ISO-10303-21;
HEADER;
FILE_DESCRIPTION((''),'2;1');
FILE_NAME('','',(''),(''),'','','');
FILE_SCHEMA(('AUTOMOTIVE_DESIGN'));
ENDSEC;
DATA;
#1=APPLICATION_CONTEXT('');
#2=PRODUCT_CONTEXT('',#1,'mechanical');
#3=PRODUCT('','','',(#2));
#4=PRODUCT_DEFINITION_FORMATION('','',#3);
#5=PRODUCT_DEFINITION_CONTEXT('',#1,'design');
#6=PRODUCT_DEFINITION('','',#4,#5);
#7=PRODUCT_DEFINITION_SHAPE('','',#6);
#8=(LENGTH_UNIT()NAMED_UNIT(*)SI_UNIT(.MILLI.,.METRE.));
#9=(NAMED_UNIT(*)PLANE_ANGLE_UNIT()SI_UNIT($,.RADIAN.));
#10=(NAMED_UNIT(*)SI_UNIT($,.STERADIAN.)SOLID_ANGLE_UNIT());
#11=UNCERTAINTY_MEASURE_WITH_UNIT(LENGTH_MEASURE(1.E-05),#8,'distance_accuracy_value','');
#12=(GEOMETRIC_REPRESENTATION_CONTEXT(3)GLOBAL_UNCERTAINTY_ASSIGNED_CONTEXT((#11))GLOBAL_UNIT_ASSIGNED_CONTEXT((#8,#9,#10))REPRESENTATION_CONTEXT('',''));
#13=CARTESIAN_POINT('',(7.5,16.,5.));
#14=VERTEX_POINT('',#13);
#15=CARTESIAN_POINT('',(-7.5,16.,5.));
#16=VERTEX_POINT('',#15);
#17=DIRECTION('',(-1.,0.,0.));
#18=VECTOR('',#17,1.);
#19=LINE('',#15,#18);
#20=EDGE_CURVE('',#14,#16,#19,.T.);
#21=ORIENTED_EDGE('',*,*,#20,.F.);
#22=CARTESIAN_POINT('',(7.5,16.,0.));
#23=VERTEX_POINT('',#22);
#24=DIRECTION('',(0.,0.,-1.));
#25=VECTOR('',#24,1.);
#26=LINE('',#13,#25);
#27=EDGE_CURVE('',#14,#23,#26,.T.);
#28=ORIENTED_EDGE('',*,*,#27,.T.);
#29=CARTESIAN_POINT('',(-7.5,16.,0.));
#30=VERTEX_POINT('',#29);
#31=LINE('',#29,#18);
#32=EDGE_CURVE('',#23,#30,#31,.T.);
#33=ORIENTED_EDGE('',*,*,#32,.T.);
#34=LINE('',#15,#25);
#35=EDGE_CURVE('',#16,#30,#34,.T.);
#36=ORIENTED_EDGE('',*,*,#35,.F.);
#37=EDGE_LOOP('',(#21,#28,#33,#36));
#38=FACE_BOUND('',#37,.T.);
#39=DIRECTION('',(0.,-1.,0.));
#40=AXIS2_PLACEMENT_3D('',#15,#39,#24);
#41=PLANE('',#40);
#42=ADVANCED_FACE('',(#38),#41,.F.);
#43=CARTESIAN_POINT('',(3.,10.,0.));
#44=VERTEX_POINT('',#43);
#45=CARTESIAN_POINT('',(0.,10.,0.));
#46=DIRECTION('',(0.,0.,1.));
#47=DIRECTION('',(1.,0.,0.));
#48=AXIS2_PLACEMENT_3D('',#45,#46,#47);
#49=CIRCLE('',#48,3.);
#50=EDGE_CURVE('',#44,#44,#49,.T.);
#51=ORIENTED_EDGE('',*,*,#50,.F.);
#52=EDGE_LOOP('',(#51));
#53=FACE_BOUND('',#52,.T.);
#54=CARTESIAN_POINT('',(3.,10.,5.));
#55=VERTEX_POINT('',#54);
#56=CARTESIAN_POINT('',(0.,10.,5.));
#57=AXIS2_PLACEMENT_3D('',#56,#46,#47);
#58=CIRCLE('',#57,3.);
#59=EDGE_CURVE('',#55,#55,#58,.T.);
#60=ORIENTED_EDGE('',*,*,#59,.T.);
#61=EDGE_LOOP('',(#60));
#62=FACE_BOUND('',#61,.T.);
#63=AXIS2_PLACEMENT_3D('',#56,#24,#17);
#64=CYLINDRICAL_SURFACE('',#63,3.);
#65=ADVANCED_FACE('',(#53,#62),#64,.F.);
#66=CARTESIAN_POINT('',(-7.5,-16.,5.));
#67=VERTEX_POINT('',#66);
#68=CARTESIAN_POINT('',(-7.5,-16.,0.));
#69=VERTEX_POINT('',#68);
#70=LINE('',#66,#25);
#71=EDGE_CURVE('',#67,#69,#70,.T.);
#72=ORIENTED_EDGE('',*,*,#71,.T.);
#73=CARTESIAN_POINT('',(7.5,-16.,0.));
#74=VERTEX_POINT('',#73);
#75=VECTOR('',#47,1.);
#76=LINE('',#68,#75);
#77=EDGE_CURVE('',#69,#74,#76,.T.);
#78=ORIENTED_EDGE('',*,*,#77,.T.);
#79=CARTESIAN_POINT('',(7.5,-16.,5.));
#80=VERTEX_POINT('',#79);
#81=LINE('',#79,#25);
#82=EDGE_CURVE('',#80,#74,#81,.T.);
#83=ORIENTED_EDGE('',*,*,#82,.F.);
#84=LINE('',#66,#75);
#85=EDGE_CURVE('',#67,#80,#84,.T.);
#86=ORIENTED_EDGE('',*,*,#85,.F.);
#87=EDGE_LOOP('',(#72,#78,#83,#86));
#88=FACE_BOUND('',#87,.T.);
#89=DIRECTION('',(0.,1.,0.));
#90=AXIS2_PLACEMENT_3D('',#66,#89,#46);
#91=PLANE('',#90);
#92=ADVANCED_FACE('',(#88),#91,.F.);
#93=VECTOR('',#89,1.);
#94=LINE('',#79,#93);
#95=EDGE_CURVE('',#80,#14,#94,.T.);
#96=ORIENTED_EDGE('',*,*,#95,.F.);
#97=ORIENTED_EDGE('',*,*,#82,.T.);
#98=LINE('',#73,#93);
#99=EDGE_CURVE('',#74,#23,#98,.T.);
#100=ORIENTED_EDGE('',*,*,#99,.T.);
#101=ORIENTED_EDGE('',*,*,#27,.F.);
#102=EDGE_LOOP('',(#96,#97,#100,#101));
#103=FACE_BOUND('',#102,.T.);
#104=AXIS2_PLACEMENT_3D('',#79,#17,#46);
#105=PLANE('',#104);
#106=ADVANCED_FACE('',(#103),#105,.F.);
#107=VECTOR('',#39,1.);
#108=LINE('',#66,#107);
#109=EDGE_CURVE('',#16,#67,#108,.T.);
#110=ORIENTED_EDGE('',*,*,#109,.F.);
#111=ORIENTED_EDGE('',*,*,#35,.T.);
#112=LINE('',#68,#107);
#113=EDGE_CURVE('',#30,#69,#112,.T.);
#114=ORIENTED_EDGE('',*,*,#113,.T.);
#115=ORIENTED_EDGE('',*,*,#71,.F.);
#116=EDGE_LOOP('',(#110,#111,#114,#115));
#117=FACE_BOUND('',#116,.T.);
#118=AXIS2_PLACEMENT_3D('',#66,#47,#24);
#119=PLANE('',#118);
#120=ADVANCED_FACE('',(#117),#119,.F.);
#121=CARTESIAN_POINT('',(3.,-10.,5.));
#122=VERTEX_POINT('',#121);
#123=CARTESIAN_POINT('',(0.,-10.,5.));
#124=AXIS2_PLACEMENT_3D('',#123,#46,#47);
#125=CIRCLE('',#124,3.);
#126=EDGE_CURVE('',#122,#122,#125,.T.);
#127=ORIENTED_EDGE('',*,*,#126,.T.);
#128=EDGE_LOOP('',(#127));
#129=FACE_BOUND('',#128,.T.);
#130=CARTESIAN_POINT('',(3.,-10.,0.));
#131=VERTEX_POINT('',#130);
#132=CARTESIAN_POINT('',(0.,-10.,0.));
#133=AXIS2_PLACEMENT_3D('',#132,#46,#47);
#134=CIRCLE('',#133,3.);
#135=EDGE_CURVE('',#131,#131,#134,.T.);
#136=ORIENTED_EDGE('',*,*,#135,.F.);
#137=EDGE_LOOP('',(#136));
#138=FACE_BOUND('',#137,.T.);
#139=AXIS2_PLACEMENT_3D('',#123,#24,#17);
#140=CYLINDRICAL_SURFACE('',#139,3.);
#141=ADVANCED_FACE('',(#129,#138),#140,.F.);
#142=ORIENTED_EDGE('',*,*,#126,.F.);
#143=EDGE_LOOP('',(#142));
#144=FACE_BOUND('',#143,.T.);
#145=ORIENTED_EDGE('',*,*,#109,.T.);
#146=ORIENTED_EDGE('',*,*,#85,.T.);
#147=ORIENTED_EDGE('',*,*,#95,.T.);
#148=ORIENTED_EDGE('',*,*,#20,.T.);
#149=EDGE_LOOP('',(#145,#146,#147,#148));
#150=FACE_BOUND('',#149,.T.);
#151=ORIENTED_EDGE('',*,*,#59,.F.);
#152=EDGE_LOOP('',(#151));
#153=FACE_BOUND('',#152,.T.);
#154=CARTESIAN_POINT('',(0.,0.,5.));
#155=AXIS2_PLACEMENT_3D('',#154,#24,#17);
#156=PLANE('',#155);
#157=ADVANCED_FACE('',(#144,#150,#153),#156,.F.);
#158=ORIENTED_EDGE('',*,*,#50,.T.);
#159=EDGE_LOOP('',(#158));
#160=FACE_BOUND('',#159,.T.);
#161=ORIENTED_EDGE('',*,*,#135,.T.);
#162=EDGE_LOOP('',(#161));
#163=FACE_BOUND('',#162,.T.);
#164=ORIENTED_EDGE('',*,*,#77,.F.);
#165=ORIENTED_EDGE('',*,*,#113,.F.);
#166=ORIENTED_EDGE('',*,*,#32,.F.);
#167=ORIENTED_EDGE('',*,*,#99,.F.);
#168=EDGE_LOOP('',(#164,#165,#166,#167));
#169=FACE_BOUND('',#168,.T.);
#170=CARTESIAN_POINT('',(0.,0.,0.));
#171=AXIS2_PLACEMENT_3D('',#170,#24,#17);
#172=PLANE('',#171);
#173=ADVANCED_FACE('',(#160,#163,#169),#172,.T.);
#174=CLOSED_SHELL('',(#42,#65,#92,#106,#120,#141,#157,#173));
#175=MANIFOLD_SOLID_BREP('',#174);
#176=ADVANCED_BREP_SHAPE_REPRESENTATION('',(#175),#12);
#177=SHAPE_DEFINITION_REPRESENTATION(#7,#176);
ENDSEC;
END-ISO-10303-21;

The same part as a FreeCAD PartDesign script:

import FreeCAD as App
import Part
import Sketcher
Q = App.Units.Quantity

doc = App.newDocument("Part")
params = doc.addObject("Spreadsheet::Sheet", "Params")
for row, (alias, value) in enumerate([
    ("sketch1_diameter", "6 mm"),
    ("sketch1_width", "15 mm"),
    ("sketch1_height", "32 mm"),
    ("pad1_length", "5 mm"),
], start=1):
    params.set(f"A{row}", alias)
    params.set(f"B{row}", "=" + value)
    params.setAlias(f"B{row}", alias)

body = doc.addObject("PartDesign::Body", "Body")

# Sketch on XY plane
sketch1 = body.newObject("Sketcher::SketchObject", "Sketch")
sketch1.AttachmentSupport = (doc.getObject("XY_Plane"), [""])
sketch1.MapMode = "FlatFace"
sketch1.addGeometry([
    Part.LineSegment(App.Vector(-7.5, 16, 0), App.Vector(-7.5, -16, 0)),  # 0
    Part.LineSegment(App.Vector(-7.5, -16, 0), App.Vector(7.5, -16, 0)),  # 1
    Part.LineSegment(App.Vector(7.5, -16, 0), App.Vector(7.5, 16, 0)),  # 2
    Part.LineSegment(App.Vector(7.5, 16, 0), App.Vector(-7.5, 16, 0)),  # 3
    Part.Circle(App.Vector(0, -10, 0), App.Vector(0, 0, 1), 3),  # 4
    Part.Circle(App.Vector(0, 10, 0), App.Vector(0, 0, 1), 3),  # 5
], False)
sketch1.addConstraint([
    Sketcher.Constraint("Coincident", 0, 2, 1, 1),
    Sketcher.Constraint("Coincident", 1, 2, 2, 1),
    Sketcher.Constraint("Coincident", 2, 2, 3, 1),
    Sketcher.Constraint("Coincident", 3, 2, 0, 1),
    Sketcher.Constraint("Vertical", 0),
    Sketcher.Constraint("Horizontal", 1),
    Sketcher.Constraint("Vertical", 2),
    Sketcher.Constraint("Horizontal", 3),
    Sketcher.Constraint("Equal", 4, 5),
    Sketcher.Constraint("Symmetric", 4, 3, 5, 3, -1, 1),
    Sketcher.Constraint("Symmetric", 0, 2, 2, 2, -1, 1),
    Sketcher.Constraint("PointOnObject", 4, 3, -2),
    Sketcher.Constraint("Diameter", 4, Q("6 mm")),
    Sketcher.Constraint("DistanceX", 1, 1, 1, 2, Q("15 mm")),
    Sketcher.Constraint("DistanceY", 0, 2, 0, 1, Q("32 mm")),
    Sketcher.Constraint("DistanceY", 4, 3, -1, 1, Q("10 mm")),
])
sketch1.setExpression("Constraints[12]", "Params.sketch1_diameter")
sketch1.setExpression("Constraints[13]", "Params.sketch1_width")
sketch1.setExpression("Constraints[14]", "Params.sketch1_height")
pad1 = body.newObject("PartDesign::Pad", "Pad")
pad1.Profile = sketch1
pad1.setExpression("Length", "Params.pad1_length")

doc.recompute()
